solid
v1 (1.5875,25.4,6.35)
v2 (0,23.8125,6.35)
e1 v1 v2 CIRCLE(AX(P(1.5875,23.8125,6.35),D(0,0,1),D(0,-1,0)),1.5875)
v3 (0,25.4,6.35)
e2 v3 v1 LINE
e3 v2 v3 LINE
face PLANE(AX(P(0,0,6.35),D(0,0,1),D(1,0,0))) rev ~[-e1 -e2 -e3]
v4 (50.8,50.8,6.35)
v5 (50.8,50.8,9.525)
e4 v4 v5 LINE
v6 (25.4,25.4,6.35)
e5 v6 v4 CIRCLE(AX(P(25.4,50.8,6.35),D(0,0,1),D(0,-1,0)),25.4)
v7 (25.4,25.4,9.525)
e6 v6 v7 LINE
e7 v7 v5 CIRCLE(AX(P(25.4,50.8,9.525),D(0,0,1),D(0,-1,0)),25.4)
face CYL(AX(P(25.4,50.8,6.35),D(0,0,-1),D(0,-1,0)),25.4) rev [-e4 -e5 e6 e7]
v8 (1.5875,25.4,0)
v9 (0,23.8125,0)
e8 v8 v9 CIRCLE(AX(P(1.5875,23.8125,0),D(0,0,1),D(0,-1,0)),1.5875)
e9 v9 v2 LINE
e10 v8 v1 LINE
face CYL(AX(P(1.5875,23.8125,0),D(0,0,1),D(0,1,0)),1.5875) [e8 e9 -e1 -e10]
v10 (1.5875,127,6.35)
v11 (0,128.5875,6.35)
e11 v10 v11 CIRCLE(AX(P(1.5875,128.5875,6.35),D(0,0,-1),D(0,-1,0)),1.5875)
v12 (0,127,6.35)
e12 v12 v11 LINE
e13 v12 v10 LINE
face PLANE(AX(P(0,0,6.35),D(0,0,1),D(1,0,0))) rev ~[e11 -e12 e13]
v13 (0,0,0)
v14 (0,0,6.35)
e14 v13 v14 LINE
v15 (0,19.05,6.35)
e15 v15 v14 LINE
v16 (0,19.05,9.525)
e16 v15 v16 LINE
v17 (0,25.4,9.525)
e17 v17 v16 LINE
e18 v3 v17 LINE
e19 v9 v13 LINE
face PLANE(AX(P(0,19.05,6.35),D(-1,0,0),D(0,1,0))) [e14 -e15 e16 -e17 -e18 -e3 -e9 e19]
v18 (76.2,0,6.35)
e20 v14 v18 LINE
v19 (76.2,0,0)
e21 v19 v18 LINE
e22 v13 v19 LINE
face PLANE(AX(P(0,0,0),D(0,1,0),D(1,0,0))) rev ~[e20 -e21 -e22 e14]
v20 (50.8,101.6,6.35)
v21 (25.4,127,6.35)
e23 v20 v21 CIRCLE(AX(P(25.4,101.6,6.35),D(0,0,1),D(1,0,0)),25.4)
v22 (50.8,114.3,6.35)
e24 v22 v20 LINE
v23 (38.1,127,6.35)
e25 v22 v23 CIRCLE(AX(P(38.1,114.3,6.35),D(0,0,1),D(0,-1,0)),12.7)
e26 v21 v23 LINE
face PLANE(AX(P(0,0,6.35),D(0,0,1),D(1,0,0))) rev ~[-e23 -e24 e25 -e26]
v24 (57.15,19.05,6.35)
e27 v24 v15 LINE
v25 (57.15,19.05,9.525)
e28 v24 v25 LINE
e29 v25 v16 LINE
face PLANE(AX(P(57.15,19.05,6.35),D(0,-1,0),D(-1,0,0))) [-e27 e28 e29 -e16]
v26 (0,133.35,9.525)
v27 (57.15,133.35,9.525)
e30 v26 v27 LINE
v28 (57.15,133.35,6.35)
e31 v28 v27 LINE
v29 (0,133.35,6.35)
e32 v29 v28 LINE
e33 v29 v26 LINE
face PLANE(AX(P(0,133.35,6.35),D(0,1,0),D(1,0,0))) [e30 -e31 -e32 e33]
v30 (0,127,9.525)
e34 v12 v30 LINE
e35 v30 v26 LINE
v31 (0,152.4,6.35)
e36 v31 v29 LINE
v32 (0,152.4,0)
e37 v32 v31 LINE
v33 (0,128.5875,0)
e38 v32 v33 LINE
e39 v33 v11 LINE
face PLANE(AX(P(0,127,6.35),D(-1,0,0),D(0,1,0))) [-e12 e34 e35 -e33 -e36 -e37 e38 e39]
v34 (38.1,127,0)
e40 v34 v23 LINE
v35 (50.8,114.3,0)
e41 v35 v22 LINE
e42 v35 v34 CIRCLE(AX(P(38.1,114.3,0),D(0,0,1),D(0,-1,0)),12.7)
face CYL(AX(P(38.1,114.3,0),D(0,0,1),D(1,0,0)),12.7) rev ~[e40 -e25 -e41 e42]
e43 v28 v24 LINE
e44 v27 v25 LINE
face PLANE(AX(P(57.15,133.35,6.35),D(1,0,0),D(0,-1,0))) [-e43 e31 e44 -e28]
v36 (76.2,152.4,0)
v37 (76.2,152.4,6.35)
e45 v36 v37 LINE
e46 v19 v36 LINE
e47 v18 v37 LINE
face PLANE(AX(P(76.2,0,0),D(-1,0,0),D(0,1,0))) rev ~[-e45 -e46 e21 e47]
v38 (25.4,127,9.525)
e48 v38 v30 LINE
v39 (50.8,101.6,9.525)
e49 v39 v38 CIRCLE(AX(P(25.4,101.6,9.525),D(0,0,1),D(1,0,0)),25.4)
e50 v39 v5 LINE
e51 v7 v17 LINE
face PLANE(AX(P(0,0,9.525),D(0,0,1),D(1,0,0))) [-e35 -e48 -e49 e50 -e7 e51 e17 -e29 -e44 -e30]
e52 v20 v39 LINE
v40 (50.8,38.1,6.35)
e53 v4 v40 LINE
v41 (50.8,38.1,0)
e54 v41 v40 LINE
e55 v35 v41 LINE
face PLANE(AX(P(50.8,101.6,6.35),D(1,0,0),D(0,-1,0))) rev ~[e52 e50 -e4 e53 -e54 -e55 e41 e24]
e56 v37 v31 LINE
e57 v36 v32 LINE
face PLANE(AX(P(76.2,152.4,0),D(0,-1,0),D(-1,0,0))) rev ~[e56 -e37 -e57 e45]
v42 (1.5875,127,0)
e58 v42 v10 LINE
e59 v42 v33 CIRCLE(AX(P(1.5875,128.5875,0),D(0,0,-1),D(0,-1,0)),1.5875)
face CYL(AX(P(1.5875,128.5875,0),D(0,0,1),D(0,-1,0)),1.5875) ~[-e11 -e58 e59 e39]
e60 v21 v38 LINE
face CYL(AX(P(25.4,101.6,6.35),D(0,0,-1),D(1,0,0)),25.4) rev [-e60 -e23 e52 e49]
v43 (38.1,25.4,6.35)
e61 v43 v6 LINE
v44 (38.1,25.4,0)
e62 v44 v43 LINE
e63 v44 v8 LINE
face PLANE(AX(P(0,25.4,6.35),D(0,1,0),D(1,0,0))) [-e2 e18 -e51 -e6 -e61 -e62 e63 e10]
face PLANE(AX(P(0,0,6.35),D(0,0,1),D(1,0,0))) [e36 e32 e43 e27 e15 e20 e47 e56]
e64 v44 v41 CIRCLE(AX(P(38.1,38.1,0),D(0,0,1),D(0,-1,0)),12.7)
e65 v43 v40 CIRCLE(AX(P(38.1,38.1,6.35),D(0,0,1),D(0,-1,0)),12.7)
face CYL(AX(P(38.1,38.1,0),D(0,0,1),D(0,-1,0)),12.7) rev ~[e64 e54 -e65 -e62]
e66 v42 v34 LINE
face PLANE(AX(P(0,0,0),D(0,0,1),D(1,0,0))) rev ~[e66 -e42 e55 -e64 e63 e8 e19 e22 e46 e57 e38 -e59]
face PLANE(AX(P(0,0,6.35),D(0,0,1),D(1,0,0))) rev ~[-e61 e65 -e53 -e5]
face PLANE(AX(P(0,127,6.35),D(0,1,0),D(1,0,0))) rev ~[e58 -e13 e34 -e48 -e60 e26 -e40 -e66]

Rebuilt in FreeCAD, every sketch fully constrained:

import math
import FreeCAD as App
import Part
import Sketcher

V = App.Vector
Q = App.Units.Quantity


def edges_at(feature, points):
    """Names of the edges that pass closest to the given points."""
    edges = feature.Shape.Edges
    near = lambda p: min(range(len(edges)), key=lambda i: edges[i].distToShape(Part.Vertex(*p))[0])
    return sorted({f"Edge{near(p) + 1}" for p in points})

doc = App.newDocument("Part")
body = doc.addObject("PartDesign::Body", "Body")

sketch1 = doc.addObject("Sketcher::SketchObject", "Sketch")
body.addObject(sketch1)
sketch1.AttachmentSupport = (doc.XY_Plane, [""])
sketch1.MapMode = "FlatFace"
sketch1.addGeometry(Part.LineSegment(V(0, 25, 0), V(0, 0, 0)), False)
sketch1.addGeometry(Part.LineSegment(V(0, 0, 0), V(76, 0, 0)), False)
sketch1.addGeometry(Part.LineSegment(V(76, 0, 0), V(76, 152, 0)), False)
sketch1.addGeometry(Part.LineSegment(V(76, 152, 0), V(0, 152, 0)), False)
sketch1.addGeometry(Part.LineSegment(V(0, 152, 0), V(0, 127, 0)), False)
sketch1.addGeometry(Part.LineSegment(V(0, 127, 0), V(51, 127, 0)), False)
sketch1.addGeometry(Part.LineSegment(V(51, 127, 0), V(51, 25, 0)), False)
sketch1.addGeometry(Part.LineSegment(V(51, 25, 0), V(0, 25, 0)), False)
sketch1.addConstraint(Sketcher.Constraint("Coincident", 0, 2, 1, 1))
sketch1.addConstraint(Sketcher.Constraint("Coincident", 1, 2, 2, 1))
sketch1.addConstraint(Sketcher.Constraint("Coincident", 2, 2, 3, 1))
sketch1.addConstraint(Sketcher.Constraint("Coincident", 3, 2, 4, 1))
sketch1.addConstraint(Sketcher.Constraint("Coincident", 4, 2, 5, 1))
sketch1.addConstraint(Sketcher.Constraint("Coincident", 5, 2, 6, 1))
sketch1.addConstraint(Sketcher.Constraint("Coincident", 6, 2, 7, 1))
sketch1.addConstraint(Sketcher.Constraint("Coincident", 7, 2, 0, 1))
sketch1.addConstraint(Sketcher.Constraint("Vertical", 0))
sketch1.addConstraint(Sketcher.Constraint("Horizontal", 1))
sketch1.addConstraint(Sketcher.Constraint("Vertical", 2))
sketch1.addConstraint(Sketcher.Constraint("Horizontal", 3))
sketch1.addConstraint(Sketcher.Constraint("Vertical", 4))
sketch1.addConstraint(Sketcher.Constraint("Horizontal", 5))
sketch1.addConstraint(Sketcher.Constraint("Vertical", 6))
sketch1.addConstraint(Sketcher.Constraint("Horizontal", 7))
sketch1.addConstraint(Sketcher.Constraint("Coincident", 0, 2, -1, 1))
sketch1.addConstraint(Sketcher.Constraint("PointOnObject", 3, 2, -2))
sketch1.addConstraint(Sketcher.Constraint("Equal", 0, 4))
sketch1.addConstraint(Sketcher.Constraint("DistanceX", 5, 1, 5, 2, Q("2 in")))
sketch1.addConstraint(Sketcher.Constraint("DistanceY", 0, 2, 0, 1, Q("1 in")))
sketch1.addConstraint(Sketcher.Constraint("DistanceY", 6, 2, 6, 1, Q("4 in")))
sketch1.addConstraint(Sketcher.Constraint("DistanceX", 5, 2, 2, 2, Q("1 in")))
pad1 = doc.addObject("PartDesign::Pad", "Pad")
body.addObject(pad1)
pad1.Profile = sketch1
pad1.Length = Q("0.25 in")
doc.recompute()

fillet = doc.addObject("PartDesign::Fillet", "Fillet")
body.addObject(fillet)
fillet.Base = (pad1, edges_at(pad1, [(50.8, 127, 3.175), (50.8, 25.4, 3.175)]))
fillet.Radius = Q("0.5 in")
doc.recompute()

fillet2 = doc.addObject("PartDesign::Fillet", "Fillet001")
body.addObject(fillet2)
fillet2.Base = (fillet, edges_at(fillet, [(0, 127, 3.175), (0, 25.4, 3.175)]))
fillet2.Radius = Q("0.0625 in")

sketch2 = doc.addObject("Sketcher::SketchObject", "Sketch001")
body.addObject(sketch2)
sketch2.AttachmentSupport = (doc.XY_Plane, [""])
sketch2.MapMode = "FlatFace"
sketch2.AttachmentOffset = App.Placement(V(0, 0, 0.25 * 25.4), App.Rotation())
sketch2.addGeometry(Part.LineSegment(V(0, 133, 0), V(0, 127, 0)), False)
sketch2.addGeometry(Part.LineSegment(V(0, 127, 0), V(25, 127, 0)), False)
sketch2.addGeometry(Part.ArcOfCircle(Part.Circle(V(25, 102, 0), V(0, 0, 1), 25), math.radians(0), math.radians(90)), False)
sketch2.addGeometry(Part.LineSegment(V(51, 102, 0), V(51, 51, 0)), False)
sketch2.addGeometry(Part.ArcOfCircle(Part.Circle(V(25, 51, 0), V(0, 0, 1), 25), math.radians(-90), math.radians(0)), False)
sketch2.addGeometry(Part.LineSegment(V(25, 25, 0), V(0, 25, 0)), False)
sketch2.addGeometry(Part.LineSegment(V(0, 25, 0), V(0, 19, 0)), False)
sketch2.addGeometry(Part.LineSegment(V(0, 19, 0), V(57, 19, 0)), False)
sketch2.addGeometry(Part.LineSegment(V(57, 19, 0), V(57, 133, 0)), False)
sketch2.addGeometry(Part.LineSegment(V(57, 133, 0), V(0, 133, 0)), False)
sketch2.addConstraint(Sketcher.Constraint("Coincident", 0, 2, 1, 1))
sketch2.addConstraint(Sketcher.Constraint("Tangent", 1, 2, 2, 2))
sketch2.addConstraint(Sketcher.Constraint("Tangent", 2, 1, 3, 1))
sketch2.addConstraint(Sketcher.Constraint("Tangent", 3, 2, 4, 2))
sketch2.addConstraint(Sketcher.Constraint("Tangent", 4, 1, 5, 1))
sketch2.addConstraint(Sketcher.Constraint("Coincident", 5, 2, 6, 1))
sketch2.addConstraint(Sketcher.Constraint("Coincident", 6, 2, 7, 1))
sketch2.addConstraint(Sketcher.Constraint("Coincident", 7, 2, 8, 1))
sketch2.addConstraint(Sketcher.Constraint("Coincident", 8, 2, 9, 1))
sketch2.addConstraint(Sketcher.Constraint("Coincident", 9, 2, 0, 1))
sketch2.addConstraint(Sketcher.Constraint("Vertical", 0))
sketch2.addConstraint(Sketcher.Constraint("Horizontal", 1))
sketch2.addConstraint(Sketcher.Constraint("Vertical", 3))
sketch2.addConstraint(Sketcher.Constraint("Horizontal", 5))
sketch2.addConstraint(Sketcher.Constraint("Vertical", 6))
sketch2.addConstraint(Sketcher.Constraint("Horizontal", 7))
sketch2.addConstraint(Sketcher.Constraint("Vertical", 8))
sketch2.addConstraint(Sketcher.Constraint("Horizontal", 9))
sketch2.addConstraint(Sketcher.Constraint("Equal", 2, 4))
sketch2.addConstraint(Sketcher.Constraint("PointOnObject", 0, 2, -2))
sketch2.addConstraint(Sketcher.Constraint("PointOnObject", 5, 2, -2))
sketch2.addConstraint(Sketcher.Constraint("Equal", 0, 6))
sketch2.addConstraint(Sketcher.Constraint("Radius", 2, Q("1 in")))
sketch2.addConstraint(Sketcher.Constraint("DistanceX", 1, 1, 1, 2, Q("1 in")))
sketch2.addConstraint(Sketcher.Constraint("DistanceY", -1, 1, 4, 1, Q("1 in")))
sketch2.addConstraint(Sketcher.Constraint("DistanceY", 0, 2, 0, 1, Q("0.25 in")))
sketch2.addConstraint(Sketcher.Constraint("DistanceY", 3, 2, 3, 1, Q("2 in")))
sketch2.addConstraint(Sketcher.Constraint("DistanceX", 3, 2, 7, 2, Q("0.25 in")))
pad2 = doc.addObject("PartDesign::Pad", "Pad001")
body.addObject(pad2)
pad2.Profile = sketch2
pad2.Length = Q("0.125 in")

doc.recompute()
